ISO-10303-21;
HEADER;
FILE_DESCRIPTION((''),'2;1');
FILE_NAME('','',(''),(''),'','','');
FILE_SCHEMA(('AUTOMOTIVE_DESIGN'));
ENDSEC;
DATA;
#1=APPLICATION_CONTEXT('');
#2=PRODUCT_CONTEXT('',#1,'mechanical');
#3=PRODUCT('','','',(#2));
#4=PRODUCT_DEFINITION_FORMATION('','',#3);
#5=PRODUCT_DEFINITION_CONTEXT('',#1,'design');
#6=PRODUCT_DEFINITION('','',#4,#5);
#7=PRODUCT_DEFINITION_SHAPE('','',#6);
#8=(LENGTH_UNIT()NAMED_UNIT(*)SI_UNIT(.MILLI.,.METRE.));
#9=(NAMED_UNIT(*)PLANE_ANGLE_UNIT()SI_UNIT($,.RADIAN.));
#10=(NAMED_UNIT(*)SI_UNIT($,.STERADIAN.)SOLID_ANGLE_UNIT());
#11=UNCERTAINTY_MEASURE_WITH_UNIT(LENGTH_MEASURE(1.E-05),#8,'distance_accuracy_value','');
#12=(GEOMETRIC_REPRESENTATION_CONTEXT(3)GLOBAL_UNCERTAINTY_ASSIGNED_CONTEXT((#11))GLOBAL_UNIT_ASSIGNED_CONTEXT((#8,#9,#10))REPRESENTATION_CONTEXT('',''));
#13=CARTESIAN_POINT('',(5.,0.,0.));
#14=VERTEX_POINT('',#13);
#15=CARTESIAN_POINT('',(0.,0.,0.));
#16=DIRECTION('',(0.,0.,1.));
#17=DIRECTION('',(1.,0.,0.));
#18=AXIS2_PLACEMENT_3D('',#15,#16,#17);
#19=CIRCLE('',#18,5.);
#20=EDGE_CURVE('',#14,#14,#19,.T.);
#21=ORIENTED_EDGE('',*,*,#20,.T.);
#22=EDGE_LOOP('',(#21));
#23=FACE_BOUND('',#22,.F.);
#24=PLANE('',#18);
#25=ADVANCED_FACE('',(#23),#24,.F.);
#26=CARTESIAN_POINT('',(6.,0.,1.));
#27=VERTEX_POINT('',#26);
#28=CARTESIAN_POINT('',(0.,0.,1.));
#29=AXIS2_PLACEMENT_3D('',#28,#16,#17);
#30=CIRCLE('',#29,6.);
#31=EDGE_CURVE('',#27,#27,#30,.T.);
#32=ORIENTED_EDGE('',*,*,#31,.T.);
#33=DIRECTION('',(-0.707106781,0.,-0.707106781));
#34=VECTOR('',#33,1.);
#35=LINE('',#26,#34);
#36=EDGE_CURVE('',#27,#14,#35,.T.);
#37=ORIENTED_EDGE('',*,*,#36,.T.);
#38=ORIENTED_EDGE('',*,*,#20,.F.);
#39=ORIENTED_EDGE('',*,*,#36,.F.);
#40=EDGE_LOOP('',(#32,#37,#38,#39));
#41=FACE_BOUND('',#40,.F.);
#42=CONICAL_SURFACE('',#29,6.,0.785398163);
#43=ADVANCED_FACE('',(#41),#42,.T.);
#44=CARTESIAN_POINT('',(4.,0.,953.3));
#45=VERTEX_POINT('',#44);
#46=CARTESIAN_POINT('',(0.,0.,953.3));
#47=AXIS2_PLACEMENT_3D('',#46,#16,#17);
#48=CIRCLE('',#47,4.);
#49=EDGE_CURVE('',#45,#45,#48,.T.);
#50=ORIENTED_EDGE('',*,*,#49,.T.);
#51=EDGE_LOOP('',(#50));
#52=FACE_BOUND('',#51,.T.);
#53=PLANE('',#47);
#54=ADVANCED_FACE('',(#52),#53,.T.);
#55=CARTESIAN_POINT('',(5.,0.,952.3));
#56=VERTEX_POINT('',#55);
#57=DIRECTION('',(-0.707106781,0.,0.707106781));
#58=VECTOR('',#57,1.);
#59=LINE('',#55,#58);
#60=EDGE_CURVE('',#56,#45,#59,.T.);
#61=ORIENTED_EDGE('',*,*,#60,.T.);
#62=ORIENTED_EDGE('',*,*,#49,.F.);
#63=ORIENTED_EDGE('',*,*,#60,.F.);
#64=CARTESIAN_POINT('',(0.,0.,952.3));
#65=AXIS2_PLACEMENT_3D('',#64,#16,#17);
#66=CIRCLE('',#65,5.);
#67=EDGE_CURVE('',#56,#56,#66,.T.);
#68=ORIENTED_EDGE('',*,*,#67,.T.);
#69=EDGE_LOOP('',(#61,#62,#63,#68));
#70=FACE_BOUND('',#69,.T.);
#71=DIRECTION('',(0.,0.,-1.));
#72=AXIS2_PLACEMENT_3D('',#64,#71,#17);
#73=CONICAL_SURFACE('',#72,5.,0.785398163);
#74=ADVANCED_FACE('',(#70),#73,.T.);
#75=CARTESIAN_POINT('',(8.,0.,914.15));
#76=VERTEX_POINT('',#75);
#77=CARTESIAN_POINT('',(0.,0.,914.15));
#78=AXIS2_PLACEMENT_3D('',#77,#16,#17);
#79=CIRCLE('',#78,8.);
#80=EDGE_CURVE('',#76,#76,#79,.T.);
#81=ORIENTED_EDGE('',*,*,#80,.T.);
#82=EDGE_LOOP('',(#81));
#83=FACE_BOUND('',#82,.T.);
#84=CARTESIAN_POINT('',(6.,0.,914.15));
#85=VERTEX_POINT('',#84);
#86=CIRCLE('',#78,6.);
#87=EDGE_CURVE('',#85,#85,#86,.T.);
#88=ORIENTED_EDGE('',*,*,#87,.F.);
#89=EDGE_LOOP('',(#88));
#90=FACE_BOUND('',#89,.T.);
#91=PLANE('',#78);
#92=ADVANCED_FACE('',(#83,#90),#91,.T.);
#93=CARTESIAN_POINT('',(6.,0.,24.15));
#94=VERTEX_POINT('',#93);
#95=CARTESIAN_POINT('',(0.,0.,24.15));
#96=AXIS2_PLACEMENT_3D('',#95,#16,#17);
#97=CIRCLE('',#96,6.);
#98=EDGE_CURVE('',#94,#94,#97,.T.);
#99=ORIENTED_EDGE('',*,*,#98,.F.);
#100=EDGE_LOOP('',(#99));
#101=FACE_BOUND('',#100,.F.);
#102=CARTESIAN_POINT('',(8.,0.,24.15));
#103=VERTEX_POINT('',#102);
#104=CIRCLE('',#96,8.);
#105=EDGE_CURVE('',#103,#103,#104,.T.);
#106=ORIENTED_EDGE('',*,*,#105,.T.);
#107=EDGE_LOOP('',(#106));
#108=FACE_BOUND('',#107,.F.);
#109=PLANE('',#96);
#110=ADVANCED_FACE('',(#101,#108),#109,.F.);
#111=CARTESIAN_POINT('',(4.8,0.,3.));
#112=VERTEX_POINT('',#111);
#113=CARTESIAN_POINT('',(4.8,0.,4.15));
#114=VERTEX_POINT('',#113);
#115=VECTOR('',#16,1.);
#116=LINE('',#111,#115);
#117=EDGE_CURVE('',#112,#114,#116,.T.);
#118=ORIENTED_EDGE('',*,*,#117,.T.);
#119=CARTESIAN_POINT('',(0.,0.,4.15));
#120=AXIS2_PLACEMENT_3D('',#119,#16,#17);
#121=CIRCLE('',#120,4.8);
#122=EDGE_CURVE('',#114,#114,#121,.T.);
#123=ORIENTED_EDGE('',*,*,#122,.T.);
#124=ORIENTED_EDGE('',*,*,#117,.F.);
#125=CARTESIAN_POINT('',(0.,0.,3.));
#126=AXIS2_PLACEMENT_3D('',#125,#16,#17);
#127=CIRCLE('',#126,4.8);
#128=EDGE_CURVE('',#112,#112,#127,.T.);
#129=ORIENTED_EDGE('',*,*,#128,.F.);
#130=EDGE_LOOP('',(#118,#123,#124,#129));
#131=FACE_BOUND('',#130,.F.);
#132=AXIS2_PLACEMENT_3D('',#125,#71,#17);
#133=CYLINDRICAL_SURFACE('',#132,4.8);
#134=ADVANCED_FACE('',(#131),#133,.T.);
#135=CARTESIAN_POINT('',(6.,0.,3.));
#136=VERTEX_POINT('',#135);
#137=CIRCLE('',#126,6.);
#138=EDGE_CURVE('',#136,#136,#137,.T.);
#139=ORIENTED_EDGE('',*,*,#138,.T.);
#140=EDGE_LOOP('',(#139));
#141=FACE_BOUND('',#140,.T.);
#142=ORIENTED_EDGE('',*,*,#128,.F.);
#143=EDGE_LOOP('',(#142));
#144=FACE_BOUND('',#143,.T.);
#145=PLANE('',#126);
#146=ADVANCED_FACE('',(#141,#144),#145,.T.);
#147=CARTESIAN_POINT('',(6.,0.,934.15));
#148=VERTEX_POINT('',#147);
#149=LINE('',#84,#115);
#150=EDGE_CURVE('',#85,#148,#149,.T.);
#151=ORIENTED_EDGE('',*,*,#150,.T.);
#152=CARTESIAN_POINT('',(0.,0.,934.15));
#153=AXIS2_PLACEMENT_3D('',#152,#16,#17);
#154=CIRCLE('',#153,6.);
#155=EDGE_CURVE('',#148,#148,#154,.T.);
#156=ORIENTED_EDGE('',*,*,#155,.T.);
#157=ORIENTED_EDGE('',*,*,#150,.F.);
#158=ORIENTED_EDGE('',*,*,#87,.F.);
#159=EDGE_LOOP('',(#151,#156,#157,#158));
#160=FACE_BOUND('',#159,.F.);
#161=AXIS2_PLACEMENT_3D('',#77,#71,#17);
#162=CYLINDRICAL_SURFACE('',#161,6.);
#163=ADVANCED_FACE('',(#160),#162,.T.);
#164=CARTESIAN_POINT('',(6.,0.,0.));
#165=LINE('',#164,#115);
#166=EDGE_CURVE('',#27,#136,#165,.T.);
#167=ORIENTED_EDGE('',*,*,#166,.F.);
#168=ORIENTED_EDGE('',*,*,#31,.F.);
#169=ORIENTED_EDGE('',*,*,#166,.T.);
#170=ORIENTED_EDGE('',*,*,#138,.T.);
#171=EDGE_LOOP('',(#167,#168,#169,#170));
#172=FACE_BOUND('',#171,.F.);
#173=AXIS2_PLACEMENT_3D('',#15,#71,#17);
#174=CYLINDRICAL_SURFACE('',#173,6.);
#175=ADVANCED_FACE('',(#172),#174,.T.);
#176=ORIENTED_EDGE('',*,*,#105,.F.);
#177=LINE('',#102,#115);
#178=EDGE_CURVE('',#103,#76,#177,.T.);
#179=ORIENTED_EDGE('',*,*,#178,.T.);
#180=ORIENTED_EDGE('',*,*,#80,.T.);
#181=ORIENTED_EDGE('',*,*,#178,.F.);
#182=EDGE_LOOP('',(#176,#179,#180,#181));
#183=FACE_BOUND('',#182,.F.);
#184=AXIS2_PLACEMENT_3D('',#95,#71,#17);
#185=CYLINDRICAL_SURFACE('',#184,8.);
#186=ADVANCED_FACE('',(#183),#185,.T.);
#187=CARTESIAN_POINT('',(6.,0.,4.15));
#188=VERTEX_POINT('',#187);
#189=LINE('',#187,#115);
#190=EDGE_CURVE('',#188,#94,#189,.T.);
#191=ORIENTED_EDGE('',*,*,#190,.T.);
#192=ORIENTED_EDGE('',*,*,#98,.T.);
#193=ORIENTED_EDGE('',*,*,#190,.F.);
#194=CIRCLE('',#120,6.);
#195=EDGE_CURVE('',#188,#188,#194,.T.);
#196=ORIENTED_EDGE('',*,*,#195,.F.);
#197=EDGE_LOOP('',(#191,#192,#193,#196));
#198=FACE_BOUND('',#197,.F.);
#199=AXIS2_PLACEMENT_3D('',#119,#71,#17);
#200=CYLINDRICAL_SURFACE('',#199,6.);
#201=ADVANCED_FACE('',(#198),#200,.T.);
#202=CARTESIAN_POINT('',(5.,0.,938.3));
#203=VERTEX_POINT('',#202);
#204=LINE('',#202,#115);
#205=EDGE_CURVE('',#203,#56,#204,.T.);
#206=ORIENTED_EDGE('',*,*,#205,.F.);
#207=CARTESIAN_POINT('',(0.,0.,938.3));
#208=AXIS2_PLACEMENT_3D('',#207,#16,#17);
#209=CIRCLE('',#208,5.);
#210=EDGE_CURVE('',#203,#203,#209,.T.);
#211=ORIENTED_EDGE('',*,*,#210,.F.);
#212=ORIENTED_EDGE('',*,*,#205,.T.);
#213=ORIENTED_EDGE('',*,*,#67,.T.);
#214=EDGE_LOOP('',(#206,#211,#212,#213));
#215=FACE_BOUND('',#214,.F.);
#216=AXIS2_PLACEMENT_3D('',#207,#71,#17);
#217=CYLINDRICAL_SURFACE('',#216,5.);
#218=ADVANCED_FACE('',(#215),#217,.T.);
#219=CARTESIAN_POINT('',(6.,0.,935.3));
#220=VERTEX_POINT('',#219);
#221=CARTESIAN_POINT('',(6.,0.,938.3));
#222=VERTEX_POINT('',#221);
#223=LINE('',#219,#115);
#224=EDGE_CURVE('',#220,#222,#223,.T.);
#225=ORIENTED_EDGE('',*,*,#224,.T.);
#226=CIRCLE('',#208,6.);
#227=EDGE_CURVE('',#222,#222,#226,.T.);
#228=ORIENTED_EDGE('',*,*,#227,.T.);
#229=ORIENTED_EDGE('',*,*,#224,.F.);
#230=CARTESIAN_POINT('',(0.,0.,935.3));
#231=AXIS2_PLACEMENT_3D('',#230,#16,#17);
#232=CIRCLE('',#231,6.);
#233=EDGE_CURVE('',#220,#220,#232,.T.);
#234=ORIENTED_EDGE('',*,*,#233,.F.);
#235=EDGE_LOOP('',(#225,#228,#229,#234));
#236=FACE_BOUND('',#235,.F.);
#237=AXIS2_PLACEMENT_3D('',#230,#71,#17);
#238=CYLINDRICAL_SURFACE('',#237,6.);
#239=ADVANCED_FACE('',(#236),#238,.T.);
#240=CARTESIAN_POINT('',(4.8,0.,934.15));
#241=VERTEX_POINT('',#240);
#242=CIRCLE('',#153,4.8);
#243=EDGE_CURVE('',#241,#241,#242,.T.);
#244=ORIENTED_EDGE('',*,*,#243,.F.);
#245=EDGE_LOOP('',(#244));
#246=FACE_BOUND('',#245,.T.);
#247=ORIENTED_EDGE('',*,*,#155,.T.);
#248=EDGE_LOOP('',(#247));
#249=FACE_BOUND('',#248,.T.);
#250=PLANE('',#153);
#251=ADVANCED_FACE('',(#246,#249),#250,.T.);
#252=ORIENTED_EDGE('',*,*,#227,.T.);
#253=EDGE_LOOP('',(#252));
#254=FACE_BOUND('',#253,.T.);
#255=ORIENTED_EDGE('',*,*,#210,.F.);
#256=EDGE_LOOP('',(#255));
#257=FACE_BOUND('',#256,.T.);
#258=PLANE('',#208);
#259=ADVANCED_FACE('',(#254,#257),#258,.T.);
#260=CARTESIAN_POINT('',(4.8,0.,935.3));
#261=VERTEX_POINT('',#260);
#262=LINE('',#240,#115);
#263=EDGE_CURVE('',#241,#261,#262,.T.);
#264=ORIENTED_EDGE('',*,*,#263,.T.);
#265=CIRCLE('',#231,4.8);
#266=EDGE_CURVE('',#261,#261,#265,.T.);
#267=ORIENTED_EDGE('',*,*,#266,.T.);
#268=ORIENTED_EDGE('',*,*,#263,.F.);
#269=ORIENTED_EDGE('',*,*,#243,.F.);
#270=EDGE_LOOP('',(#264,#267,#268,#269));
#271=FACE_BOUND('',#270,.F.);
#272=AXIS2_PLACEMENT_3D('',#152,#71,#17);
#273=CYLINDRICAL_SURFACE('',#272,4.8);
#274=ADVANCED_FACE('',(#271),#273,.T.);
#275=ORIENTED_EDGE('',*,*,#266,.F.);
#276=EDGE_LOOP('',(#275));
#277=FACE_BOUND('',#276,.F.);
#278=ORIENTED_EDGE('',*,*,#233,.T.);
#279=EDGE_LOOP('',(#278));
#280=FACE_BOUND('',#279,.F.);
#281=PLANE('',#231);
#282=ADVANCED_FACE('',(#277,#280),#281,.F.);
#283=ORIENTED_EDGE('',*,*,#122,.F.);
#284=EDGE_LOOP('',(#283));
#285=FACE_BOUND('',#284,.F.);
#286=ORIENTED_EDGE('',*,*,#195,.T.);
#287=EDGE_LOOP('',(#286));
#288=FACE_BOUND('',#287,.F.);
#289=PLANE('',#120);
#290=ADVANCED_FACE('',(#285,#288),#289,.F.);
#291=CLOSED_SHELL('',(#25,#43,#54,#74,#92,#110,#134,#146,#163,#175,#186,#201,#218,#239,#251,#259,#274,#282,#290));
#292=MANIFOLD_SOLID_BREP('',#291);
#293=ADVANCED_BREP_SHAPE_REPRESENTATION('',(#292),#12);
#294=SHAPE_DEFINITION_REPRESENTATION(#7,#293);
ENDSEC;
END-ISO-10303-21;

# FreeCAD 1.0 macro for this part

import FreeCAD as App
import Part
import Sketcher
Q = App.Units.Quantity


def edges_at(feature, points):
    """Names of the edges that pass closest to the given points."""
    edges = feature.Shape.Edges
    near = lambda p: min(range(len(edges)), key=lambda i: edges[i].distToShape(Part.Vertex(*p))[0])
    return sorted({f"Edge{near(p) + 1}" for p in points})

doc = App.newDocument("Part")
params = doc.addObject("Spreadsheet::Sheet", "Params")
for row, (alias, value) in enumerate([
    ("sketch1_diameter", "12 mm"),
    ("pad1_length", "3 mm"),
    ("sketch2_diameter", "9.6 mm"),
    ("pad2_length", "1.15 mm"),
    ("sketch3_diameter", "12 mm"),
    ("pad3_length", "20 mm"),
    ("sketch4_diameter", "16 mm"),
    ("pad4_length", "890 mm"),
    ("sketch5_diameter", "12 mm"),
    ("pad5_length", "20 mm"),
    ("sketch6_diameter", "9.6 mm"),
    ("pad6_length", "1.15 mm"),
    ("sketch7_diameter", "12 mm"),
    ("pad7_length", "3 mm"),
    ("sketch8_diameter", "10 mm"),
    ("pad8_length", "15 mm"),
    ("chamfer_size", "1 mm"),
], start=1):
    params.set(f"A{row}", alias)
    params.set(f"B{row}", "=" + value)
    params.setAlias(f"B{row}", alias)

body = doc.addObject("PartDesign::Body", "Body")

# Sketch on XY plane
sketch1 = body.newObject("Sketcher::SketchObject", "Sketch")
sketch1.AttachmentSupport = (doc.getObject("XY_Plane"), [""])
sketch1.MapMode = "FlatFace"
sketch1.addGeometry(Part.Circle(App.Vector(0, 0, 0), App.Vector(0, 0, 1), 6), False)
sketch1.addConstraint([
    Sketcher.Constraint("Coincident", 0, 3, -1, 1),
    Sketcher.Constraint("Diameter", 0, Q("12 mm")),
])
sketch1.setExpression("Constraints[1]", "Params.sketch1_diameter")
pad1 = body.newObject("PartDesign::Pad", "Pad")
pad1.Profile = sketch1
pad1.setExpression("Length", "Params.pad1_length")

# Sketch on XY plane
sketch2 = body.newObject("Sketcher::SketchObject", "Sketch001")
sketch2.AttachmentSupport = (doc.getObject("XY_Plane"), [""])
sketch2.MapMode = "FlatFace"
sketch2.AttachmentOffset = App.Placement(App.Vector(0, 0, 3), App.Rotation())
sketch2.addGeometry(Part.Circle(App.Vector(0, 0, 0), App.Vector(0, 0, 1), 4.8), False)
sketch2.addConstraint([
    Sketcher.Constraint("Coincident", 0, 3, -1, 1),
    Sketcher.Constraint("Diameter", 0, Q("9.6 mm")),
])
sketch2.setExpression("Constraints[1]", "Params.sketch2_diameter")
pad2 = body.newObject("PartDesign::Pad", "Pad001")
pad2.Profile = sketch2
pad2.setExpression("Length", "Params.pad2_length")

# Sketch on XY plane
sketch3 = body.newObject("Sketcher::SketchObject", "Sketch002")
sketch3.AttachmentSupport = (doc.getObject("XY_Plane"), [""])
sketch3.MapMode = "FlatFace"
sketch3.AttachmentOffset = App.Placement(App.Vector(0, 0, 4.15), App.Rotation())
sketch3.addGeometry(Part.Circle(App.Vector(0, 0, 0), App.Vector(0, 0, 1), 6), False)
sketch3.addConstraint([
    Sketcher.Constraint("Coincident", 0, 3, -1, 1),
    Sketcher.Constraint("Diameter", 0, Q("12 mm")),
])
sketch3.setExpression("Constraints[1]", "Params.sketch3_diameter")
pad3 = body.newObject("PartDesign::Pad", "Pad002")
pad3.Profile = sketch3
pad3.setExpression("Length", "Params.pad3_length")

# Sketch on XY plane
sketch4 = body.newObject("Sketcher::SketchObject", "Sketch003")
sketch4.AttachmentSupport = (doc.getObject("XY_Plane"), [""])
sketch4.MapMode = "FlatFace"
sketch4.AttachmentOffset = App.Placement(App.Vector(0, 0, 24.15), App.Rotation())
sketch4.addGeometry(Part.Circle(App.Vector(0, 0, 0), App.Vector(0, 0, 1), 8), False)
sketch4.addConstraint([
    Sketcher.Constraint("Coincident", 0, 3, -1, 1),
    Sketcher.Constraint("Diameter", 0, Q("16 mm")),
])
sketch4.setExpression("Constraints[1]", "Params.sketch4_diameter")
pad4 = body.newObject("PartDesign::Pad", "Pad003")
pad4.Profile = sketch4
pad4.setExpression("Length", "Params.pad4_length")

# Sketch on XY plane
sketch5 = body.newObject("Sketcher::SketchObject", "Sketch004")
sketch5.AttachmentSupport = (doc.getObject("XY_Plane"), [""])
sketch5.MapMode = "FlatFace"
sketch5.AttachmentOffset = App.Placement(App.Vector(0, 0, 914.15), App.Rotation())
sketch5.addGeometry(Part.Circle(App.Vector(0, 0, 0), App.Vector(0, 0, 1), 6), False)
sketch5.addConstraint([
    Sketcher.Constraint("Coincident", 0, 3, -1, 1),
    Sketcher.Constraint("Diameter", 0, Q("12 mm")),
])
sketch5.setExpression("Constraints[1]", "Params.sketch5_diameter")
pad5 = body.newObject("PartDesign::Pad", "Pad004")
pad5.Profile = sketch5
pad5.setExpression("Length", "Params.pad5_length")

# Sketch on XY plane
sketch6 = body.newObject("Sketcher::SketchObject", "Sketch005")
sketch6.AttachmentSupport = (doc.getObject("XY_Plane"), [""])
sketch6.MapMode = "FlatFace"
sketch6.AttachmentOffset = App.Placement(App.Vector(0, 0, 934.15), App.Rotation())
sketch6.addGeometry(Part.Circle(App.Vector(0, 0, 0), App.Vector(0, 0, 1), 4.8), False)
sketch6.addConstraint([
    Sketcher.Constraint("Coincident", 0, 3, -1, 1),
    Sketcher.Constraint("Diameter", 0, Q("9.6 mm")),
])
sketch6.setExpression("Constraints[1]", "Params.sketch6_diameter")
pad6 = body.newObject("PartDesign::Pad", "Pad005")
pad6.Profile = sketch6
pad6.setExpression("Length", "Params.pad6_length")

# Sketch on XY plane
sketch7 = body.newObject("Sketcher::SketchObject", "Sketch006")
sketch7.AttachmentSupport = (doc.getObject("XY_Plane"), [""])
sketch7.MapMode = "FlatFace"
sketch7.AttachmentOffset = App.Placement(App.Vector(0, 0, 935.3), App.Rotation())
sketch7.addGeometry(Part.Circle(App.Vector(0, 0, 0), App.Vector(0, 0, 1), 6), False)
sketch7.addConstraint([
    Sketcher.Constraint("Coincident", 0, 3, -1, 1),
    Sketcher.Constraint("Diameter", 0, Q("12 mm")),
])
sketch7.setExpression("Constraints[1]", "Params.sketch7_diameter")
pad7 = body.newObject("PartDesign::Pad", "Pad006")
pad7.Profile = sketch7
pad7.setExpression("Length", "Params.pad7_length")

# Sketch on XY plane
sketch8 = body.newObject("Sketcher::SketchObject", "Sketch007")
sketch8.AttachmentSupport = (doc.getObject("XY_Plane"), [""])
sketch8.MapMode = "FlatFace"
sketch8.AttachmentOffset = App.Placement(App.Vector(0, 0, 938.3), App.Rotation())
sketch8.addGeometry(Part.Circle(App.Vector(0, 0, 0), App.Vector(0, 0, 1), 5), False)
sketch8.addConstraint([
    Sketcher.Constraint("Coincident", 0, 3, -1, 1),
    Sketcher.Constraint("Diameter", 0, Q("10 mm")),
])
sketch8.setExpression("Constraints[1]", "Params.sketch8_diameter")
pad8 = body.newObject("PartDesign::Pad", "Pad007")
pad8.Profile = sketch8
pad8.setExpression("Length", "Params.pad8_length")
doc.recompute()

chamfer = body.newObject("PartDesign::Chamfer", "Chamfer")
chamfer.Base = (pad8, edges_at(pad8, [(-5, 0, 953.3), (-6, 0, 0)]))
chamfer.setExpression("Size", "Params.chamfer_size")

doc.recompute()
